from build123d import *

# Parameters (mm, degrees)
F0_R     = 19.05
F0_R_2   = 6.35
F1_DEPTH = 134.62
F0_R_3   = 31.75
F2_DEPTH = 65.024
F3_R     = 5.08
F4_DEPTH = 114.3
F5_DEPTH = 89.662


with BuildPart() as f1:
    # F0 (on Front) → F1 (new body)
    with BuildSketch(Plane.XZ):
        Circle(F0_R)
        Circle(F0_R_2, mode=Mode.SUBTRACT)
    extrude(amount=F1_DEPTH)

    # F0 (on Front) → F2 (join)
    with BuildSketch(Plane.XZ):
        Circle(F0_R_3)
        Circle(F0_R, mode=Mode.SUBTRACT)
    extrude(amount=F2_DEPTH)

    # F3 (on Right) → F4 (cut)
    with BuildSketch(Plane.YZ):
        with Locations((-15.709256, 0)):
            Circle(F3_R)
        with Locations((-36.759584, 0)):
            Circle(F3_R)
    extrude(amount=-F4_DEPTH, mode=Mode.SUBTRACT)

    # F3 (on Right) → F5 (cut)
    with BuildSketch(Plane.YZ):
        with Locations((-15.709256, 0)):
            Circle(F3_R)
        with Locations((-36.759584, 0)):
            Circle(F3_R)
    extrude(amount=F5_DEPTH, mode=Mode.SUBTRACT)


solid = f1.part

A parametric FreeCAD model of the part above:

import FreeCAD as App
import Part
import Sketcher

V = App.Vector
Q = App.Units.Quantity

doc = App.newDocument("Part")
body = doc.addObject("PartDesign::Body", "Body")

# Sketch on XZ plane
sketch1 = body.newObject("Sketcher::SketchObject", "Sketch")
sketch1.AttachmentSupport = (doc.getObject("XZ_Plane"), [""])
sketch1.MapMode = "FlatFace"
sketch1.addGeometry([
    Part.Circle(V(0, 0, 0), V(0, 0, 1), 19.05),
    Part.Circle(V(0, 0, 0), V(0, 0, 1), 6.35),
], False)
sketch1.addConstraint([
    Sketcher.Constraint("Coincident", 0, 3, -1, 1),
    Sketcher.Constraint("Coincident", 1, 3, -1, 1),
    Sketcher.Constraint("Diameter", 0, Q("1.5 in")),
    Sketcher.Constraint("Diameter", 1, Q("0.5 in")),
])
pad1 = body.newObject("PartDesign::Pad", "Pad")
pad1.Profile = sketch1
pad1.Length = Q("5.3 in")

# Sketch on XZ plane
sketch2 = body.newObject("Sketcher::SketchObject", "Sketch001")
sketch2.AttachmentSupport = (doc.getObject("XZ_Plane"), [""])
sketch2.MapMode = "FlatFace"
sketch2.addGeometry([
    Part.Circle(V(0, 0, 0), V(0, 0, 1), 31.75),
    Part.Circle(V(0, 0, 0), V(0, 0, 1), 19.05),
], False)
sketch2.addConstraint([
    Sketcher.Constraint("Coincident", 0, 3, -1, 1),
    Sketcher.Constraint("Coincident", 1, 3, -1, 1),
    Sketcher.Constraint("Diameter", 0, Q("2.5 in")),
    Sketcher.Constraint("Diameter", 1, Q("1.5 in")),
])
pad2 = body.newObject("PartDesign::Pad", "Pad001")
pad2.Profile = sketch2
pad2.Length = Q("2.56 in")

# Sketch on YZ plane
sketch3 = body.newObject("Sketcher::SketchObject", "Sketch002")
sketch3.AttachmentSupport = (doc.getObject("YZ_Plane"), [""])
sketch3.MapMode = "FlatFace"
sketch3.addGeometry([
    Part.Circle(V(-15.709256, 0, 0), V(0, 0, 1), 5.08),
    Part.Circle(V(-36.759584, 0, 0), V(0, 0, 1), 5.08),
], False)
sketch3.addConstraint([
    Sketcher.Constraint("Equal", 0, 1),
    Sketcher.Constraint("PointOnObject", 0, 3, -1),
    Sketcher.Constraint("PointOnObject", 1, 3, -1),
    Sketcher.Constraint("Diameter", 0, Q("0.4 in")),
    Sketcher.Constraint("DistanceX", 0, 3, -1, 1, 15.709256),
    Sketcher.Constraint("DistanceX", 1, 3, -1, 1, 36.759584),
])
pocket1 = body.newObject("PartDesign::Pocket", "Pocket")
pocket1.Profile = sketch3
pocket1.Length = Q("4.5 in")

# Sketch on YZ plane
sketch4 = body.newObject("Sketcher::SketchObject", "Sketch003")
sketch4.AttachmentSupport = (doc.getObject("YZ_Plane"), [""])
sketch4.MapMode = "FlatFace"
sketch4.addGeometry([
    Part.Circle(V(-15.709256, 0, 0), V(0, 0, 1), 5.08),
    Part.Circle(V(-36.759584, 0, 0), V(0, 0, 1), 5.08),
], False)
sketch4.addConstraint([
    Sketcher.Constraint("Equal", 0, 1),
    Sketcher.Constraint("PointOnObject", 0, 3, -1),
    Sketcher.Constraint("PointOnObject", 1, 3, -1),
    Sketcher.Constraint("Diameter", 0, Q("0.4 in")),
    Sketcher.Constraint("DistanceX", 0, 3, -1, 1, 15.709256),
    Sketcher.Constraint("DistanceX", 1, 3, -1, 1, 36.759584),
])
pocket2 = body.newObject("PartDesign::Pocket", "Pocket001")
pocket2.Profile = sketch4
pocket2.Length = Q("3.53 in")
pocket2.Reversed = True

doc.recompute()
